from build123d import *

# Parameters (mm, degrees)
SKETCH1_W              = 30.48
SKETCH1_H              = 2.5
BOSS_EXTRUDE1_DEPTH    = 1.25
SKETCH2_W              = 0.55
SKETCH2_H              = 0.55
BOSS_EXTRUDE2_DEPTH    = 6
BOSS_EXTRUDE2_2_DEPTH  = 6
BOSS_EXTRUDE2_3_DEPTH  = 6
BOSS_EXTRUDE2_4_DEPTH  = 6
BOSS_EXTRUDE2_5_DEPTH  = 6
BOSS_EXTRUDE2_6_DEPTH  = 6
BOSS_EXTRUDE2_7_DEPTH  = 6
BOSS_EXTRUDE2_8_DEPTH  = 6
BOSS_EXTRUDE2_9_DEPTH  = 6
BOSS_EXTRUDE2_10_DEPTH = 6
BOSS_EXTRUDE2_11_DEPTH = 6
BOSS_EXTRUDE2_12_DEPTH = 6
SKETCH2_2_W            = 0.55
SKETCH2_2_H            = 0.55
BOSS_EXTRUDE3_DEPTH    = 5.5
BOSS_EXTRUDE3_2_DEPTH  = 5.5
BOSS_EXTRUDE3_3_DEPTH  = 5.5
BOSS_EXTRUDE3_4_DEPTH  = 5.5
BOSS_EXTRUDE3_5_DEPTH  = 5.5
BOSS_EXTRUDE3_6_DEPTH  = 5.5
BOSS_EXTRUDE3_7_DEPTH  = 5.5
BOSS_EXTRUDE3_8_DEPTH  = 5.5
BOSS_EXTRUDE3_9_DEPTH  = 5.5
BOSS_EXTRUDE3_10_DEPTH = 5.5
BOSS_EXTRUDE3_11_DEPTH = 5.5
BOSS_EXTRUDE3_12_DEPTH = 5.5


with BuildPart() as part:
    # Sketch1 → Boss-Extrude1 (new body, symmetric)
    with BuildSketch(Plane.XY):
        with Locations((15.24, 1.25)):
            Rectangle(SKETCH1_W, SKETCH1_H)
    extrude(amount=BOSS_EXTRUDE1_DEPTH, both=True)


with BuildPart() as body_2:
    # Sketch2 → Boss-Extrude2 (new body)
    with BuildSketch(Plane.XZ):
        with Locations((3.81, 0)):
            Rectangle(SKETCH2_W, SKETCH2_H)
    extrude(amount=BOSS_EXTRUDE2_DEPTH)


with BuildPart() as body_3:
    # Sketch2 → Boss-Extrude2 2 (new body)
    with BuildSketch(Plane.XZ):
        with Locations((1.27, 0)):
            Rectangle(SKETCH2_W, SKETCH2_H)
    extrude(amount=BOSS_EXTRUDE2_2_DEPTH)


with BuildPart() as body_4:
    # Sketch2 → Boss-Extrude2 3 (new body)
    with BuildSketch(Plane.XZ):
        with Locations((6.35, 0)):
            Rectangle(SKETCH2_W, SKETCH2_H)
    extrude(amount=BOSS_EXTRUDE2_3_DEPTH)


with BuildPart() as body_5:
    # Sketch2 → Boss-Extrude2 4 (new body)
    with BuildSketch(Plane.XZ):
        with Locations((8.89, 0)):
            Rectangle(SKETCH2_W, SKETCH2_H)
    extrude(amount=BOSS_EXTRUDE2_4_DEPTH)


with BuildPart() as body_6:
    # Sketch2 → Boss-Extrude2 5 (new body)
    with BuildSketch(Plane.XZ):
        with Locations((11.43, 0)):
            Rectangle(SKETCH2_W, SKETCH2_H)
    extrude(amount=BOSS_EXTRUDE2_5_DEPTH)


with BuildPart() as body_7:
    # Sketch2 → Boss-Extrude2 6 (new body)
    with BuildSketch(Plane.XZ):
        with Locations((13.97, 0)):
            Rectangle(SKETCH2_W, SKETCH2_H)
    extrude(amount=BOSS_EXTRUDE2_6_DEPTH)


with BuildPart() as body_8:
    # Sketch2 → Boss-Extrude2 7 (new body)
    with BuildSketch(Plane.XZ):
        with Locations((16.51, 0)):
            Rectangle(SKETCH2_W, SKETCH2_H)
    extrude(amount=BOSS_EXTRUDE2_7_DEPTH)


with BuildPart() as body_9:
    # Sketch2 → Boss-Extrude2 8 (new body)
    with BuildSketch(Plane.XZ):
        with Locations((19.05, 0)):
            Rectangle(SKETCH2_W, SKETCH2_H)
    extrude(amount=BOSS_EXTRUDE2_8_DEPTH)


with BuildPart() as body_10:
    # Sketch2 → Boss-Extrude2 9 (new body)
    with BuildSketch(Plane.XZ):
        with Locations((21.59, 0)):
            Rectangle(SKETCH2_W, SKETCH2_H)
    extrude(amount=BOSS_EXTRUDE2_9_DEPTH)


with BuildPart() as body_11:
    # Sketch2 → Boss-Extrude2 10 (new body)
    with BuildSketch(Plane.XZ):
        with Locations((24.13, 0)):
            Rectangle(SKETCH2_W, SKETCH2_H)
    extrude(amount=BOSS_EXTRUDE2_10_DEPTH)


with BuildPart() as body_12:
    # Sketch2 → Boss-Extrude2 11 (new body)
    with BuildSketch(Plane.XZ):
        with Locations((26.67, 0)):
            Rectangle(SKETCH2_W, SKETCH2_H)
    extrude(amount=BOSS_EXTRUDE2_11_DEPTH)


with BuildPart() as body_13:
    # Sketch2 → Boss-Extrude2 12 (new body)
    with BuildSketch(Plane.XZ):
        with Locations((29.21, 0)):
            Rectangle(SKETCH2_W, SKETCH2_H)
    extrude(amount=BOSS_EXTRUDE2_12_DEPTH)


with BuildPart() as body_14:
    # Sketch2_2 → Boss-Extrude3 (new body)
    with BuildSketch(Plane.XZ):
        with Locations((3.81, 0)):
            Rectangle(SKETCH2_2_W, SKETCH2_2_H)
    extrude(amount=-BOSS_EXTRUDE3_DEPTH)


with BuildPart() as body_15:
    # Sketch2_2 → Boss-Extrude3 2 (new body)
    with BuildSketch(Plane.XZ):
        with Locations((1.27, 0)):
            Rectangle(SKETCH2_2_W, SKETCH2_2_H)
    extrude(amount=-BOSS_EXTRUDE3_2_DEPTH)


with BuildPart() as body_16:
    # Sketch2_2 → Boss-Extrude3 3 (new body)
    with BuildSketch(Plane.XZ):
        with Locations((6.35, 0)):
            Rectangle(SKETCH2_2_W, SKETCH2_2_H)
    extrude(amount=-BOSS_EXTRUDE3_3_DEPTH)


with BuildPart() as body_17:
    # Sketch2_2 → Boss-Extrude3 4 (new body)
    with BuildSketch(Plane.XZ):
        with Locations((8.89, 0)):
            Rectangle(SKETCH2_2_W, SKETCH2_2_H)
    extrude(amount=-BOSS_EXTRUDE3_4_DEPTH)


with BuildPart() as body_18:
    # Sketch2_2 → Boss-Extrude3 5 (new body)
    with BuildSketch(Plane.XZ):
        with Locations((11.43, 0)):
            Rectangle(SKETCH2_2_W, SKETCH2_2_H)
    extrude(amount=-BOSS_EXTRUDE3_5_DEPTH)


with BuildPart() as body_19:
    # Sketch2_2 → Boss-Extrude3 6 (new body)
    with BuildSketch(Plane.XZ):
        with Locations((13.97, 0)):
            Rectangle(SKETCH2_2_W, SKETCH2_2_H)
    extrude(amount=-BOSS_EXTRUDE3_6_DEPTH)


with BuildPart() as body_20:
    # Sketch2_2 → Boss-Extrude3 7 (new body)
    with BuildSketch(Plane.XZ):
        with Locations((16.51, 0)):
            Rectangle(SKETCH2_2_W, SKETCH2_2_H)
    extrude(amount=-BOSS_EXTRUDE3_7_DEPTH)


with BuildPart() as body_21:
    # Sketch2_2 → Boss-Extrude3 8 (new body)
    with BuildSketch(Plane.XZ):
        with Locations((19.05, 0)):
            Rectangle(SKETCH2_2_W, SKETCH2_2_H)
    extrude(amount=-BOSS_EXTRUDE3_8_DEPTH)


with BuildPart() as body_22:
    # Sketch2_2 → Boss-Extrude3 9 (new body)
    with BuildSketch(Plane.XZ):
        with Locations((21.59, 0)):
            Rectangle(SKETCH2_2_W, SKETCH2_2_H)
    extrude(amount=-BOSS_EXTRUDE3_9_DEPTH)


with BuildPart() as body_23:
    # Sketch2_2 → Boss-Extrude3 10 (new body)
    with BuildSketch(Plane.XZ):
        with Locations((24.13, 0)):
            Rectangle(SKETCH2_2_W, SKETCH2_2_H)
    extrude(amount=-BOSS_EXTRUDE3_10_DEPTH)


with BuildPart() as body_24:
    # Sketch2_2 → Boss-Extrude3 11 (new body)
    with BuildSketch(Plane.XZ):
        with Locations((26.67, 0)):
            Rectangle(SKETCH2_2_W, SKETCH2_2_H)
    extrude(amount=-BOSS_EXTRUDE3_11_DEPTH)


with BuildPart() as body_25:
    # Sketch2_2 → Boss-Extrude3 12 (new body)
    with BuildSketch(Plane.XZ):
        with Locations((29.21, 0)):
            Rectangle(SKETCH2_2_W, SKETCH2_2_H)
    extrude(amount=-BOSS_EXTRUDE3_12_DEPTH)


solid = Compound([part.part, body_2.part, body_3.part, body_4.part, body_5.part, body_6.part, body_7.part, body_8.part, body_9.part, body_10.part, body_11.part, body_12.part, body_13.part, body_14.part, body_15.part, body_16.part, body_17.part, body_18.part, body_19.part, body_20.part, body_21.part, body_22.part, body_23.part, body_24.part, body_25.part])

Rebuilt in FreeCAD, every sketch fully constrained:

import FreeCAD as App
import Part
import Sketcher

doc = App.newDocument("Part")
body = doc.addObject("PartDesign::Body", "Body")

sketch1 = doc.addObject("Sketcher::SketchObject", "Sketch")
body.addObject(sketch1)
sketch1.AttachmentSupport = (doc.XY_Plane, [""])
sketch1.MapMode = "FlatFace"
sketch1.addGeometry(Part.LineSegment(App.Vector(0, 2.5, 0), App.Vector(0, 0, 0)), False)
sketch1.addGeometry(Part.LineSegment(App.Vector(0, 0, 0), App.Vector(30.5, 0, 0)), False)
sketch1.addGeometry(Part.LineSegment(App.Vector(30.5, 0, 0), App.Vector(30.5, 2.5, 0)), False)
sketch1.addGeometry(Part.LineSegment(App.Vector(30.5, 2.5, 0), App.Vector(0, 2.5, 0)), False)
sketch1.addConstraint(Sketcher.Constraint("Coincident", 0, 2, 1, 1))
sketch1.addConstraint(Sketcher.Constraint("Coincident", 1, 2, 2, 1))
sketch1.addConstraint(Sketcher.Constraint("Coincident", 2, 2, 3, 1))
sketch1.addConstraint(Sketcher.Constraint("Coincident", 3, 2, 0, 1))
sketch1.addConstraint(Sketcher.Constraint("Vertical", 0))
sketch1.addConstraint(Sketcher.Constraint("Horizontal", 1))
sketch1.addConstraint(Sketcher.Constraint("Vertical", 2))
sketch1.addConstraint(Sketcher.Constraint("Horizontal", 3))
sketch1.addConstraint(Sketcher.Constraint("Coincident", 0, 2, -1, 1))
sketch1.addConstraint(Sketcher.Constraint("DistanceY", 0, 2, 0, 1, 2.5))
sketch1.addConstraint(Sketcher.Constraint("DistanceX", 1, 1, 1, 2, 30.48))
pad1 = doc.addObject("PartDesign::Pad", "Pad")
body.addObject(pad1)
pad1.Profile = sketch1
pad1.Length = 2.5
pad1.Midplane = True
body2 = doc.addObject("PartDesign::Body", "Body001")

sketch2 = doc.addObject("Sketcher::SketchObject", "Sketch001")
body2.addObject(sketch2)
sketch2.AttachmentSupport = (doc.getObject("XZ_Plane001"), [""])
sketch2.MapMode = "FlatFace"
sketch2.addGeometry(Part.LineSegment(App.Vector(3.5, 0.3, 0), App.Vector(3.5, -0.3, 0)), False)
sketch2.addGeometry(Part.LineSegment(App.Vector(3.5, -0.3, 0), App.Vector(4.1, -0.3, 0)), False)
sketch2.addGeometry(Part.LineSegment(App.Vector(4.1, -0.3, 0), App.Vector(4.1, 0.3, 0)), False)
sketch2.addGeometry(Part.LineSegment(App.Vector(4.1, 0.3, 0), App.Vector(3.5, 0.3, 0)), False)
sketch2.addConstraint(Sketcher.Constraint("Coincident", 0, 2, 1, 1))
sketch2.addConstraint(Sketcher.Constraint("Coincident", 1, 2, 2, 1))
sketch2.addConstraint(Sketcher.Constraint("Coincident", 2, 2, 3, 1))
sketch2.addConstraint(Sketcher.Constraint("Coincident", 3, 2, 0, 1))
sketch2.addConstraint(Sketcher.Constraint("Vertical", 0))
sketch2.addConstraint(Sketcher.Constraint("Horizontal", 1))
sketch2.addConstraint(Sketcher.Constraint("Vertical", 2))
sketch2.addConstraint(Sketcher.Constraint("Horizontal", 3))
sketch2.addConstraint(Sketcher.Constraint("Equal", 3, 0))
sketch2.addConstraint(Sketcher.Constraint("DistanceX", 1, 1, 1, 2, 0.55))
sketch2.addConstraint(Sketcher.Constraint("DistanceX", -1, 1, 0, 2, 3.535))
sketch2.addConstraint(Sketcher.Constraint("DistanceY", 0, 2, -1, 1, 0.275))
pad2 = doc.addObject("PartDesign::Pad", "Pad001")
body2.addObject(pad2)
pad2.Profile = sketch2
pad2.Length = 6
body3 = doc.addObject("PartDesign::Body", "Body002")

sketch3 = doc.addObject("Sketcher::SketchObject", "Sketch002")
body3.addObject(sketch3)
sketch3.AttachmentSupport = (doc.getObject("XZ_Plane002"), [""])
sketch3.MapMode = "FlatFace"
sketch3.addGeometry(Part.LineSegment(App.Vector(1, 0.3, 0), App.Vector(1, -0.3, 0)), False)
sketch3.addGeometry(Part.LineSegment(App.Vector(1, -0.3, 0), App.Vector(1.5, -0.3, 0)), False)
sketch3.addGeometry(Part.LineSegment(App.Vector(1.5, -0.3, 0), App.Vector(1.5, 0.3, 0)), False)
sketch3.addGeometry(Part.LineSegment(App.Vector(1.5, 0.3, 0), App.Vector(1, 0.3, 0)), False)
sketch3.addConstraint(Sketcher.Constraint("Coincident", 0, 2, 1, 1))
sketch3.addConstraint(Sketcher.Constraint("Coincident", 1, 2, 2, 1))
sketch3.addConstraint(Sketcher.Constraint("Coincident", 2, 2, 3, 1))
sketch3.addConstraint(Sketcher.Constraint("Coincident", 3, 2, 0, 1))
sketch3.addConstraint(Sketcher.Constraint("Vertical", 0))
sketch3.addConstraint(Sketcher.Constraint("Horizontal", 1))
sketch3.addConstraint(Sketcher.Constraint("Vertical", 2))
sketch3.addConstraint(Sketcher.Constraint("Horizontal", 3))
sketch3.addConstraint(Sketcher.Constraint("Equal", 3, 0))
sketch3.addConstraint(Sketcher.Constraint("DistanceX", 1, 1, 1, 2, 0.55))
sketch3.addConstraint(Sketcher.Constraint("DistanceX", -1, 1, 0, 2, 0.995))
sketch3.addConstraint(Sketcher.Constraint("DistanceY", 0, 2, -1, 1, 0.275))
pad3 = doc.addObject("PartDesign::Pad", "Pad002")
body3.addObject(pad3)
pad3.Profile = sketch3
pad3.Length = 6
body4 = doc.addObject("PartDesign::Body", "Body003")

sketch4 = doc.addObject("Sketcher::SketchObject", "Sketch003")
body4.addObject(sketch4)
sketch4.AttachmentSupport = (doc.getObject("XZ_Plane003"), [""])
sketch4.MapMode = "FlatFace"
sketch4.addGeometry(Part.LineSegment(App.Vector(6.1, 0.3, 0), App.Vector(6.1, -0.3, 0)), False)
sketch4.addGeometry(Part.LineSegment(App.Vector(6.1, -0.3, 0), App.Vector(6.6, -0.3, 0)), False)
sketch4.addGeometry(Part.LineSegment(App.Vector(6.6, -0.3, 0), App.Vector(6.6, 0.3, 0)), False)
sketch4.addGeometry(Part.LineSegment(App.Vector(6.6, 0.3, 0), App.Vector(6.1, 0.3, 0)), False)
sketch4.addConstraint(Sketcher.Constraint("Coincident", 0, 2, 1, 1))
sketch4.addConstraint(Sketcher.Constraint("Coincident", 1, 2, 2, 1))
sketch4.addConstraint(Sketcher.Constraint("Coincident", 2, 2, 3, 1))
sketch4.addConstraint(Sketcher.Constraint("Coincident", 3, 2, 0, 1))
sketch4.addConstraint(Sketcher.Constraint("Vertical", 0))
sketch4.addConstraint(Sketcher.Constraint("Horizontal", 1))
sketch4.addConstraint(Sketcher.Constraint("Vertical", 2))
sketch4.addConstraint(Sketcher.Constraint("Horizontal", 3))
sketch4.addConstraint(Sketcher.Constraint("Equal", 3, 0))
sketch4.addConstraint(Sketcher.Constraint("DistanceX", 1, 1, 1, 2, 0.55))
sketch4.addConstraint(Sketcher.Constraint("DistanceX", -1, 1, 0, 2, 6.075))
sketch4.addConstraint(Sketcher.Constraint("DistanceY", 0, 2, -1, 1, 0.275))
pad4 = doc.addObject("PartDesign::Pad", "Pad003")
body4.addObject(pad4)
pad4.Profile = sketch4
pad4.Length = 6
body5 = doc.addObject("PartDesign::Body", "Body004")

sketch5 = doc.addObject("Sketcher::SketchObject", "Sketch004")
body5.addObject(sketch5)
sketch5.AttachmentSupport = (doc.getObject("XZ_Plane004"), [""])
sketch5.MapMode = "FlatFace"
sketch5.addGeometry(Part.LineSegment(App.Vector(8.6, 0.3, 0), App.Vector(8.6, -0.3, 0)), False)
sketch5.addGeometry(Part.LineSegment(App.Vector(8.6, -0.3, 0), App.Vector(9.2, -0.3, 0)), False)
sketch5.addGeometry(Part.LineSegment(App.Vector(9.2, -0.3, 0), App.Vector(9.2, 0.3, 0)), False)
sketch5.addGeometry(Part.LineSegment(App.Vector(9.2, 0.3, 0), App.Vector(8.6, 0.3, 0)), False)
sketch5.addConstraint(Sketcher.Constraint("Coincident", 0, 2, 1, 1))
sketch5.addConstraint(Sketcher.Constraint("Coincident", 1, 2, 2, 1))
sketch5.addConstraint(Sketcher.Constraint("Coincident", 2, 2, 3, 1))
sketch5.addConstraint(Sketcher.Constraint("Coincident", 3, 2, 0, 1))
sketch5.addConstraint(Sketcher.Constraint("Vertical", 0))
sketch5.addConstraint(Sketcher.Constraint("Horizontal", 1))
sketch5.addConstraint(Sketcher.Constraint("Vertical", 2))
sketch5.addConstraint(Sketcher.Constraint("Horizontal", 3))
sketch5.addConstraint(Sketcher.Constraint("Equal", 3, 0))
sketch5.addConstraint(Sketcher.Constraint("DistanceX", 1, 1, 1, 2, 0.55))
sketch5.addConstraint(Sketcher.Constraint("DistanceX", -1, 1, 0, 2, 8.615))
sketch5.addConstraint(Sketcher.Constraint("DistanceY", 0, 2, -1, 1, 0.275))
pad5 = doc.addObject("PartDesign::Pad", "Pad004")
body5.addObject(pad5)
pad5.Profile = sketch5
pad5.Length = 6
body6 = doc.addObject("PartDesign::Body", "Body005")

sketch6 = doc.addObject("Sketcher::SketchObject", "Sketch005")
body6.addObject(sketch6)
sketch6.AttachmentSupport = (doc.getObject("XZ_Plane005"), [""])
sketch6.MapMode = "FlatFace"
sketch6.addGeometry(Part.LineSegment(App.Vector(11.2, 0.3, 0), App.Vector(11.2, -0.3, 0)), False)
sketch6.addGeometry(Part.LineSegment(App.Vector(11.2, -0.3, 0), App.Vector(11.7, -0.3, 0)), False)
sketch6.addGeometry(Part.LineSegment(App.Vector(11.7, -0.3, 0), App.Vector(11.7, 0.3, 0)), False)
sketch6.addGeometry(Part.LineSegment(App.Vector(11.7, 0.3, 0), App.Vector(11.2, 0.3, 0)), False)
sketch6.addConstraint(Sketcher.Constraint("Coincident", 0, 2, 1, 1))
sketch6.addConstraint(Sketcher.Constraint("Coincident", 1, 2, 2, 1))
sketch6.addConstraint(Sketcher.Constraint("Coincident", 2, 2, 3, 1))
sketch6.addConstraint(Sketcher.Constraint("Coincident", 3, 2, 0, 1))
sketch6.addConstraint(Sketcher.Constraint("Vertical", 0))
sketch6.addConstraint(Sketcher.Constraint("Horizontal", 1))
sketch6.addConstraint(Sketcher.Constraint("Vertical", 2))
sketch6.addConstraint(Sketcher.Constraint("Horizontal", 3))
sketch6.addConstraint(Sketcher.Constraint("Equal", 3, 0))
sketch6.addConstraint(Sketcher.Constraint("DistanceX", 1, 1, 1, 2, 0.55))
sketch6.addConstraint(Sketcher.Constraint("DistanceX", -1, 1, 0, 2, 11.155))
sketch6.addConstraint(Sketcher.Constraint("DistanceY", 0, 2, -1, 1, 0.275))
pad6 = doc.addObject("PartDesign::Pad", "Pad005")
body6.addObject(pad6)
pad6.Profile = sketch6
pad6.Length = 6
body7 = doc.addObject("PartDesign::Body", "Body006")

sketch7 = doc.addObject("Sketcher::SketchObject", "Sketch006")
body7.addObject(sketch7)
sketch7.AttachmentSupport = (doc.getObject("XZ_Plane006"), [""])
sketch7.MapMode = "FlatFace"
sketch7.addGeometry(Part.LineSegment(App.Vector(13.7, 0.3, 0), App.Vector(13.7, -0.3, 0)), False)
sketch7.addGeometry(Part.LineSegment(App.Vector(13.7, -0.3, 0), App.Vector(14.2, -0.3, 0)), False)
sketch7.addGeometry(Part.LineSegment(App.Vector(14.2, -0.3, 0), App.Vector(14.2, 0.3, 0)), False)
sketch7.addGeometry(Part.LineSegment(App.Vector(14.2, 0.3, 0), App.Vector(13.7, 0.3, 0)), False)
sketch7.addConstraint(Sketcher.Constraint("Coincident", 0, 2, 1, 1))
sketch7.addConstraint(Sketcher.Constraint("Coincident", 1, 2, 2, 1))
sketch7.addConstraint(Sketcher.Constraint("Coincident", 2, 2, 3, 1))
sketch7.addConstraint(Sketcher.Constraint("Coincident", 3, 2, 0, 1))
sketch7.addConstraint(Sketcher.Constraint("Vertical", 0))
sketch7.addConstraint(Sketcher.Constraint("Horizontal", 1))
sketch7.addConstraint(Sketcher.Constraint("Vertical", 2))
sketch7.addConstraint(Sketcher.Constraint("Horizontal", 3))
sketch7.addConstraint(Sketcher.Constraint("Equal", 3, 0))
sketch7.addConstraint(Sketcher.Constraint("DistanceX", 1, 1, 1, 2, 0.55))
sketch7.addConstraint(Sketcher.Constraint("DistanceX", -1, 1, 0, 2, 13.695))
sketch7.addConstraint(Sketcher.Constraint("DistanceY", 0, 2, -1, 1, 0.275))
pad7 = doc.addObject("PartDesign::Pad", "Pad006")
body7.addObject(pad7)
pad7.Profile = sketch7
pad7.Length = 6
body8 = doc.addObject("PartDesign::Body", "Body007")

sketch8 = doc.addObject("Sketcher::SketchObject", "Sketch007")
body8.addObject(sketch8)
sketch8.AttachmentSupport = (doc.getObject("XZ_Plane007"), [""])
sketch8.MapMode = "FlatFace"
sketch8.addGeometry(Part.LineSegment(App.Vector(16.2, 0.3, 0), App.Vector(16.2, -0.3, 0)), False)
sketch8.addGeometry(Part.LineSegment(App.Vector(16.2, -0.3, 0), App.Vector(16.8, -0.3, 0)), False)
sketch8.addGeometry(Part.LineSegment(App.Vector(16.8, -0.3, 0), App.Vector(16.8, 0.3, 0)), False)
sketch8.addGeometry(Part.LineSegment(App.Vector(16.8, 0.3, 0), App.Vector(16.2, 0.3, 0)), False)
sketch8.addConstraint(Sketcher.Constraint("Coincident", 0, 2, 1, 1))
sketch8.addConstraint(Sketcher.Constraint("Coincident", 1, 2, 2, 1))
sketch8.addConstraint(Sketcher.Constraint("Coincident", 2, 2, 3, 1))
sketch8.addConstraint(Sketcher.Constraint("Coincident", 3, 2, 0, 1))
sketch8.addConstraint(Sketcher.Constraint("Vertical", 0))
sketch8.addConstraint(Sketcher.Constraint("Horizontal", 1))
sketch8.addConstraint(Sketcher.Constraint("Vertical", 2))
sketch8.addConstraint(Sketcher.Constraint("Horizontal", 3))
sketch8.addConstraint(Sketcher.Constraint("Equal", 3, 0))
sketch8.addConstraint(Sketcher.Constraint("DistanceX", 1, 1, 1, 2, 0.55))
sketch8.addConstraint(Sketcher.Constraint("DistanceX", -1, 1, 0, 2, 16.235))
sketch8.addConstraint(Sketcher.Constraint("DistanceY", 0, 2, -1, 1, 0.275))
pad8 = doc.addObject("PartDesign::Pad", "Pad007")
body8.addObject(pad8)
pad8.Profile = sketch8
pad8.Length = 6
body9 = doc.addObject("PartDesign::Body", "Body008")

sketch9 = doc.addObject("Sketcher::SketchObject", "Sketch008")
body9.addObject(sketch9)
sketch9.AttachmentSupport = (doc.getObject("XZ_Plane008"), [""])
sketch9.MapMode = "FlatFace"
sketch9.addGeometry(Part.LineSegment(App.Vector(18.8, 0.3, 0), App.Vector(18.8, -0.3, 0)), False)
sketch9.addGeometry(Part.LineSegment(App.Vector(18.8, -0.3, 0), App.Vector(19.3, -0.3, 0)), False)
sketch9.addGeometry(Part.LineSegment(App.Vector(19.3, -0.3, 0), App.Vector(19.3, 0.3, 0)), False)
sketch9.addGeometry(Part.LineSegment(App.Vector(19.3, 0.3, 0), App.Vector(18.8, 0.3, 0)), False)
sketch9.addConstraint(Sketcher.Constraint("Coincident", 0, 2, 1, 1))
sketch9.addConstraint(Sketcher.Constraint("Coincident", 1, 2, 2, 1))
sketch9.addConstraint(Sketcher.Constraint("Coincident", 2, 2, 3, 1))
sketch9.addConstraint(Sketcher.Constraint("Coincident", 3, 2, 0, 1))
sketch9.addConstraint(Sketcher.Constraint("Vertical", 0))
sketch9.addConstraint(Sketcher.Constraint("Horizontal", 1))
sketch9.addConstraint(Sketcher.Constraint("Vertical", 2))
sketch9.addConstraint(Sketcher.Constraint("Horizontal", 3))
sketch9.addConstraint(Sketcher.Constraint("Equal", 3, 0))
sketch9.addConstraint(Sketcher.Constraint("DistanceX", 1, 1, 1, 2, 0.55))
sketch9.addConstraint(Sketcher.Constraint("DistanceX", -1, 1, 0, 2, 18.775))
sketch9.addConstraint(Sketcher.Constraint("DistanceY", 0, 2, -1, 1, 0.275))
pad9 = doc.addObject("PartDesign::Pad", "Pad008")
body9.addObject(pad9)
pad9.Profile = sketch9
pad9.Length = 6
body10 = doc.addObject("PartDesign::Body", "Body009")

sketch10 = doc.addObject("Sketcher::SketchObject", "Sketch009")
body10.addObject(sketch10)
sketch10.AttachmentSupport = (doc.getObject("XZ_Plane009"), [""])
sketch10.MapMode = "FlatFace"
sketch10.addGeometry(Part.LineSegment(App.Vector(21.3, 0.3, 0), App.Vector(21.3, -0.3, 0)), False)
sketch10.addGeometry(Part.LineSegment(App.Vector(21.3, -0.3, 0), App.Vector(21.9, -0.3, 0)), False)
sketch10.addGeometry(Part.LineSegment(App.Vector(21.9, -0.3, 0), App.Vector(21.9, 0.3, 0)), False)
sketch10.addGeometry(Part.LineSegment(App.Vector(21.9, 0.3, 0), App.Vector(21.3, 0.3, 0)), False)
sketch10.addConstraint(Sketcher.Constraint("Coincident", 0, 2, 1, 1))
sketch10.addConstraint(Sketcher.Constraint("Coincident", 1, 2, 2, 1))
sketch10.addConstraint(Sketcher.Constraint("Coincident", 2, 2, 3, 1))
sketch10.addConstraint(Sketcher.Constraint("Coincident", 3, 2, 0, 1))
sketch10.addConstraint(Sketcher.Constraint("Vertical", 0))
sketch10.addConstraint(Sketcher.Constraint("Horizontal", 1))
sketch10.addConstraint(Sketcher.Constraint("Vertical", 2))
sketch10.addConstraint(Sketcher.Constraint("Horizontal", 3))
sketch10.addConstraint(Sketcher.Constraint("Equal", 3, 0))
sketch10.addConstraint(Sketcher.Constraint("DistanceX", 1, 1, 1, 2, 0.55))
sketch10.addConstraint(Sketcher.Constraint("DistanceX", -1, 1, 0, 2, 21.315))
sketch10.addConstraint(Sketcher.Constraint("DistanceY", 0, 2, -1, 1, 0.275))
pad10 = doc.addObject("PartDesign::Pad", "Pad009")
body10.addObject(pad10)
pad10.Profile = sketch10
pad10.Length = 6
body11 = doc.addObject("PartDesign::Body", "Body010")

sketch11 = doc.addObject("Sketcher::SketchObject", "Sketch010")
body11.addObject(sketch11)
sketch11.AttachmentSupport = (doc.getObject("XZ_Plane010"), [""])
sketch11.MapMode = "FlatFace"
sketch11.addGeometry(Part.LineSegment(App.Vector(23.9, 0.3, 0), App.Vector(23.9, -0.3, 0)), False)
sketch11.addGeometry(Part.LineSegment(App.Vector(23.9, -0.3, 0), App.Vector(24.4, -0.3, 0)), False)
sketch11.addGeometry(Part.LineSegment(App.Vector(24.4, -0.3, 0), App.Vector(24.4, 0.3, 0)), False)
sketch11.addGeometry(Part.LineSegment(App.Vector(24.4, 0.3, 0), App.Vector(23.9, 0.3, 0)), False)
sketch11.addConstraint(Sketcher.Constraint("Coincident", 0, 2, 1, 1))
sketch11.addConstraint(Sketcher.Constraint("Coincident", 1, 2, 2, 1))
sketch11.addConstraint(Sketcher.Constraint("Coincident", 2, 2, 3, 1))
sketch11.addConstraint(Sketcher.Constraint("Coincident", 3, 2, 0, 1))
sketch11.addConstraint(Sketcher.Constraint("Vertical", 0))
sketch11.addConstraint(Sketcher.Constraint("Horizontal", 1))
sketch11.addConstraint(Sketcher.Constraint("Vertical", 2))
sketch11.addConstraint(Sketcher.Constraint("Horizontal", 3))
sketch11.addConstraint(Sketcher.Constraint("Equal", 3, 0))
sketch11.addConstraint(Sketcher.Constraint("DistanceX", 1, 1, 1, 2, 0.55))
sketch11.addConstraint(Sketcher.Constraint("DistanceX", -1, 1, 0, 2, 23.855))
sketch11.addConstraint(Sketcher.Constraint("DistanceY", 0, 2, -1, 1, 0.275))
pad11 = doc.addObject("PartDesign::Pad", "Pad010")
body11.addObject(pad11)
pad11.Profile = sketch11
pad11.Length = 6
body12 = doc.addObject("PartDesign::Body", "Body011")

sketch12 = doc.addObject("Sketcher::SketchObject", "Sketch011")
body12.addObject(sketch12)
sketch12.AttachmentSupport = (doc.getObject("XZ_Plane011"), [""])
sketch12.MapMode = "FlatFace"
sketch12.addGeometry(Part.LineSegment(App.Vector(26.4, 0.3, 0), App.Vector(26.4, -0.3, 0)), False)
sketch12.addGeometry(Part.LineSegment(App.Vector(26.4, -0.3, 0), App.Vector(26.9, -0.3, 0)), False)
sketch12.addGeometry(Part.LineSegment(App.Vector(26.9, -0.3, 0), App.Vector(26.9, 0.3, 0)), False)
sketch12.addGeometry(Part.LineSegment(App.Vector(26.9, 0.3, 0), App.Vector(26.4, 0.3, 0)), False)
sketch12.addConstraint(Sketcher.Constraint("Coincident", 0, 2, 1, 1))
sketch12.addConstraint(Sketcher.Constraint("Coincident", 1, 2, 2, 1))
sketch12.addConstraint(Sketcher.Constraint("Coincident", 2, 2, 3, 1))
sketch12.addConstraint(Sketcher.Constraint("Coincident", 3, 2, 0, 1))
sketch12.addConstraint(Sketcher.Constraint("Vertical", 0))
sketch12.addConstraint(Sketcher.Constraint("Horizontal", 1))
sketch12.addConstraint(Sketcher.Constraint("Vertical", 2))
sketch12.addConstraint(Sketcher.Constraint("Horizontal", 3))
sketch12.addConstraint(Sketcher.Constraint("Equal", 3, 0))
sketch12.addConstraint(Sketcher.Constraint("DistanceX", 1, 1, 1, 2, 0.55))
sketch12.addConstraint(Sketcher.Constraint("DistanceX", -1, 1, 0, 2, 26.395))
sketch12.addConstraint(Sketcher.Constraint("DistanceY", 0, 2, -1, 1, 0.275))
pad12 = doc.addObject("PartDesign::Pad", "Pad011")
body12.addObject(pad12)
pad12.Profile = sketch12
pad12.Length = 6
body13 = doc.addObject("PartDesign::Body", "Body012")

sketch13 = doc.addObject("Sketcher::SketchObject", "Sketch012")
body13.addObject(sketch13)
sketch13.AttachmentSupport = (doc.getObject("XZ_Plane012"), [""])
sketch13.MapMode = "FlatFace"
sketch13.addGeometry(Part.LineSegment(App.Vector(28.9, 0.3, 0), App.Vector(28.9, -0.3, 0)), False)
sketch13.addGeometry(Part.LineSegment(App.Vector(28.9, -0.3, 0), App.Vector(29.5, -0.3, 0)), False)
sketch13.addGeometry(Part.LineSegment(App.Vector(29.5, -0.3, 0), App.Vector(29.5, 0.3, 0)), False)
sketch13.addGeometry(Part.LineSegment(App.Vector(29.5, 0.3, 0), App.Vector(28.9, 0.3, 0)), False)
sketch13.addConstraint(Sketcher.Constraint("Coincident", 0, 2, 1, 1))
sketch13.addConstraint(Sketcher.Constraint("Coincident", 1, 2, 2, 1))
sketch13.addConstraint(Sketcher.Constraint("Coincident", 2, 2, 3, 1))
sketch13.addConstraint(Sketcher.Constraint("Coincident", 3, 2, 0, 1))
sketch13.addConstraint(Sketcher.Constraint("Vertical", 0))
sketch13.addConstraint(Sketcher.Constraint("Horizontal", 1))
sketch13.addConstraint(Sketcher.Constraint("Vertical", 2))
sketch13.addConstraint(Sketcher.Constraint("Horizontal", 3))
sketch13.addConstraint(Sketcher.Constraint("Equal", 3, 0))
sketch13.addConstraint(Sketcher.Constraint("DistanceX", 1, 1, 1, 2, 0.55))
sketch13.addConstraint(Sketcher.Constraint("DistanceX", -1, 1, 0, 2, 28.935))
sketch13.addConstraint(Sketcher.Constraint("DistanceY", 0, 2, -1, 1, 0.275))
pad13 = doc.addObject("PartDesign::Pad", "Pad012")
body13.addObject(pad13)
pad13.Profile = sketch13
pad13.Length = 6
body14 = doc.addObject("PartDesign::Body", "Body013")

sketch14 = doc.addObject("Sketcher::SketchObject", "Sketch013")
body14.addObject(sketch14)
sketch14.AttachmentSupport = (doc.getObject("XZ_Plane013"), [""])
sketch14.MapMode = "FlatFace"
sketch14.addGeometry(Part.LineSegment(App.Vector(3.5, 0.3, 0), App.Vector(3.5, -0.3, 0)), False)
sketch14.addGeometry(Part.LineSegment(App.Vector(3.5, -0.3, 0), App.Vector(4.1, -0.3, 0)), False)
sketch14.addGeometry(Part.LineSegment(App.Vector(4.1, -0.3, 0), App.Vector(4.1, 0.3, 0)), False)
sketch14.addGeometry(Part.LineSegment(App.Vector(4.1, 0.3, 0), App.Vector(3.5, 0.3, 0)), False)
sketch14.addConstraint(Sketcher.Constraint("Coincident", 0, 2, 1, 1))
sketch14.addConstraint(Sketcher.Constraint("Coincident", 1, 2, 2, 1))
sketch14.addConstraint(Sketcher.Constraint("Coincident", 2, 2, 3, 1))
sketch14.addConstraint(Sketcher.Constraint("Coincident", 3, 2, 0, 1))
sketch14.addConstraint(Sketcher.Constraint("Vertical", 0))
sketch14.addConstraint(Sketcher.Constraint("Horizontal", 1))
sketch14.addConstraint(Sketcher.Constraint("Vertical", 2))
sketch14.addConstraint(Sketcher.Constraint("Horizontal", 3))
sketch14.addConstraint(Sketcher.Constraint("Equal", 3, 0))
sketch14.addConstraint(Sketcher.Constraint("DistanceX", 1, 1, 1, 2, 0.55))
sketch14.addConstraint(Sketcher.Constraint("DistanceX", -1, 1, 0, 2, 3.535))
sketch14.addConstraint(Sketcher.Constraint("DistanceY", 0, 2, -1, 1, 0.275))
pad14 = doc.addObject("PartDesign::Pad", "Pad013")
body14.addObject(pad14)
pad14.Profile = sketch14
pad14.Length = 5.5
pad14.Reversed = True
body15 = doc.addObject("PartDesign::Body", "Body014")

sketch15 = doc.addObject("Sketcher::SketchObject", "Sketch014")
body15.addObject(sketch15)
sketch15.AttachmentSupport = (doc.getObject("XZ_Plane014"), [""])
sketch15.MapMode = "FlatFace"
sketch15.addGeometry(Part.LineSegment(App.Vector(1, 0.3, 0), App.Vector(1, -0.3, 0)), False)
sketch15.addGeometry(Part.LineSegment(App.Vector(1, -0.3, 0), App.Vector(1.5, -0.3, 0)), False)
sketch15.addGeometry(Part.LineSegment(App.Vector(1.5, -0.3, 0), App.Vector(1.5, 0.3, 0)), False)
sketch15.addGeometry(Part.LineSegment(App.Vector(1.5, 0.3, 0), App.Vector(1, 0.3, 0)), False)
sketch15.addConstraint(Sketcher.Constraint("Coincident", 0, 2, 1, 1))
sketch15.addConstraint(Sketcher.Constraint("Coincident", 1, 2, 2, 1))
sketch15.addConstraint(Sketcher.Constraint("Coincident", 2, 2, 3, 1))
sketch15.addConstraint(Sketcher.Constraint("Coincident", 3, 2, 0, 1))
sketch15.addConstraint(Sketcher.Constraint("Vertical", 0))
sketch15.addConstraint(Sketcher.Constraint("Horizontal", 1))
sketch15.addConstraint(Sketcher.Constraint("Vertical", 2))
sketch15.addConstraint(Sketcher.Constraint("Horizontal", 3))
sketch15.addConstraint(Sketcher.Constraint("Equal", 3, 0))
sketch15.addConstraint(Sketcher.Constraint("DistanceX", 1, 1, 1, 2, 0.55))
sketch15.addConstraint(Sketcher.Constraint("DistanceX", -1, 1, 0, 2, 0.995))
sketch15.addConstraint(Sketcher.Constraint("DistanceY", 0, 2, -1, 1, 0.275))
pad15 = doc.addObject("PartDesign::Pad", "Pad014")
body15.addObject(pad15)
pad15.Profile = sketch15
pad15.Length = 5.5
pad15.Reversed = True
body16 = doc.addObject("PartDesign::Body", "Body015")

sketch16 = doc.addObject("Sketcher::SketchObject", "Sketch015")
body16.addObject(sketch16)
sketch16.AttachmentSupport = (doc.getObject("XZ_Plane015"), [""])
sketch16.MapMode = "FlatFace"
sketch16.addGeometry(Part.LineSegment(App.Vector(6.1, 0.3, 0), App.Vector(6.1, -0.3, 0)), False)
sketch16.addGeometry(Part.LineSegment(App.Vector(6.1, -0.3, 0), App.Vector(6.6, -0.3, 0)), False)
sketch16.addGeometry(Part.LineSegment(App.Vector(6.6, -0.3, 0), App.Vector(6.6, 0.3, 0)), False)
sketch16.addGeometry(Part.LineSegment(App.Vector(6.6, 0.3, 0), App.Vector(6.1, 0.3, 0)), False)
sketch16.addConstraint(Sketcher.Constraint("Coincident", 0, 2, 1, 1))
sketch16.addConstraint(Sketcher.Constraint("Coincident", 1, 2, 2, 1))
sketch16.addConstraint(Sketcher.Constraint("Coincident", 2, 2, 3, 1))
sketch16.addConstraint(Sketcher.Constraint("Coincident", 3, 2, 0, 1))
sketch16.addConstraint(Sketcher.Constraint("Vertical", 0))
sketch16.addConstraint(Sketcher.Constraint("Horizontal", 1))
sketch16.addConstraint(Sketcher.Constraint("Vertical", 2))
sketch16.addConstraint(Sketcher.Constraint("Horizontal", 3))
sketch16.addConstraint(Sketcher.Constraint("Equal", 3, 0))
sketch16.addConstraint(Sketcher.Constraint("DistanceX", 1, 1, 1, 2, 0.55))
sketch16.addConstraint(Sketcher.Constraint("DistanceX", -1, 1, 0, 2, 6.075))
sketch16.addConstraint(Sketcher.Constraint("DistanceY", 0, 2, -1, 1, 0.275))
pad16 = doc.addObject("PartDesign::Pad", "Pad015")
body16.addObject(pad16)
pad16.Profile = sketch16
pad16.Length = 5.5
pad16.Reversed = True
body17 = doc.addObject("PartDesign::Body", "Body016")

sketch17 = doc.addObject("Sketcher::SketchObject", "Sketch016")
body17.addObject(sketch17)
sketch17.AttachmentSupport = (doc.getObject("XZ_Plane016"), [""])
sketch17.MapMode = "FlatFace"
sketch17.addGeometry(Part.LineSegment(App.Vector(8.6, 0.3, 0), App.Vector(8.6, -0.3, 0)), False)
sketch17.addGeometry(Part.LineSegment(App.Vector(8.6, -0.3, 0), App.Vector(9.2, -0.3, 0)), False)
sketch17.addGeometry(Part.LineSegment(App.Vector(9.2, -0.3, 0), App.Vector(9.2, 0.3, 0)), False)
sketch17.addGeometry(Part.LineSegment(App.Vector(9.2, 0.3, 0), App.Vector(8.6, 0.3, 0)), False)
sketch17.addConstraint(Sketcher.Constraint("Coincident", 0, 2, 1, 1))
sketch17.addConstraint(Sketcher.Constraint("Coincident", 1, 2, 2, 1))
sketch17.addConstraint(Sketcher.Constraint("Coincident", 2, 2, 3, 1))
sketch17.addConstraint(Sketcher.Constraint("Coincident", 3, 2, 0, 1))
sketch17.addConstraint(Sketcher.Constraint("Vertical", 0))
sketch17.addConstraint(Sketcher.Constraint("Horizontal", 1))
sketch17.addConstraint(Sketcher.Constraint("Vertical", 2))
sketch17.addConstraint(Sketcher.Constraint("Horizontal", 3))
sketch17.addConstraint(Sketcher.Constraint("Equal", 3, 0))
sketch17.addConstraint(Sketcher.Constraint("DistanceX", 1, 1, 1, 2, 0.55))
sketch17.addConstraint(Sketcher.Constraint("DistanceX", -1, 1, 0, 2, 8.615))
sketch17.addConstraint(Sketcher.Constraint("DistanceY", 0, 2, -1, 1, 0.275))
pad17 = doc.addObject("PartDesign::Pad", "Pad016")
body17.addObject(pad17)
pad17.Profile = sketch17
pad17.Length = 5.5
pad17.Reversed = True
body18 = doc.addObject("PartDesign::Body", "Body017")

sketch18 = doc.addObject("Sketcher::SketchObject", "Sketch017")
body18.addObject(sketch18)
sketch18.AttachmentSupport = (doc.getObject("XZ_Plane017"), [""])
sketch18.MapMode = "FlatFace"
sketch18.addGeometry(Part.LineSegment(App.Vector(11.2, 0.3, 0), App.Vector(11.2, -0.3, 0)), False)
sketch18.addGeometry(Part.LineSegment(App.Vector(11.2, -0.3, 0), App.Vector(11.7, -0.3, 0)), False)
sketch18.addGeometry(Part.LineSegment(App.Vector(11.7, -0.3, 0), App.Vector(11.7, 0.3, 0)), False)
sketch18.addGeometry(Part.LineSegment(App.Vector(11.7, 0.3, 0), App.Vector(11.2, 0.3, 0)), False)
sketch18.addConstraint(Sketcher.Constraint("Coincident", 0, 2, 1, 1))
sketch18.addConstraint(Sketcher.Constraint("Coincident", 1, 2, 2, 1))
sketch18.addConstraint(Sketcher.Constraint("Coincident", 2, 2, 3, 1))
sketch18.addConstraint(Sketcher.Constraint("Coincident", 3, 2, 0, 1))
sketch18.addConstraint(Sketcher.Constraint("Vertical", 0))
sketch18.addConstraint(Sketcher.Constraint("Horizontal", 1))
sketch18.addConstraint(Sketcher.Constraint("Vertical", 2))
sketch18.addConstraint(Sketcher.Constraint("Horizontal", 3))
sketch18.addConstraint(Sketcher.Constraint("Equal", 3, 0))
sketch18.addConstraint(Sketcher.Constraint("DistanceX", 1, 1, 1, 2, 0.55))
sketch18.addConstraint(Sketcher.Constraint("DistanceX", -1, 1, 0, 2, 11.155))
sketch18.addConstraint(Sketcher.Constraint("DistanceY", 0, 2, -1, 1, 0.275))
pad18 = doc.addObject("PartDesign::Pad", "Pad017")
body18.addObject(pad18)
pad18.Profile = sketch18
pad18.Length = 5.5
pad18.Reversed = True
body19 = doc.addObject("PartDesign::Body", "Body018")

sketch19 = doc.addObject("Sketcher::SketchObject", "Sketch018")
body19.addObject(sketch19)
sketch19.AttachmentSupport = (doc.getObject("XZ_Plane018"), [""])
sketch19.MapMode = "FlatFace"
sketch19.addGeometry(Part.LineSegment(App.Vector(13.7, 0.3, 0), App.Vector(13.7, -0.3, 0)), False)
sketch19.addGeometry(Part.LineSegment(App.Vector(13.7, -0.3, 0), App.Vector(14.2, -0.3, 0)), False)
sketch19.addGeometry(Part.LineSegment(App.Vector(14.2, -0.3, 0), App.Vector(14.2, 0.3, 0)), False)
sketch19.addGeometry(Part.LineSegment(App.Vector(14.2, 0.3, 0), App.Vector(13.7, 0.3, 0)), False)
sketch19.addConstraint(Sketcher.Constraint("Coincident", 0, 2, 1, 1))
sketch19.addConstraint(Sketcher.Constraint("Coincident", 1, 2, 2, 1))
sketch19.addConstraint(Sketcher.Constraint("Coincident", 2, 2, 3, 1))
sketch19.addConstraint(Sketcher.Constraint("Coincident", 3, 2, 0, 1))
sketch19.addConstraint(Sketcher.Constraint("Vertical", 0))
sketch19.addConstraint(Sketcher.Constraint("Horizontal", 1))
sketch19.addConstraint(Sketcher.Constraint("Vertical", 2))
sketch19.addConstraint(Sketcher.Constraint("Horizontal", 3))
sketch19.addConstraint(Sketcher.Constraint("Equal", 3, 0))
sketch19.addConstraint(Sketcher.Constraint("DistanceX", 1, 1, 1, 2, 0.55))
sketch19.addConstraint(Sketcher.Constraint("DistanceX", -1, 1, 0, 2, 13.695))
sketch19.addConstraint(Sketcher.Constraint("DistanceY", 0, 2, -1, 1, 0.275))
pad19 = doc.addObject("PartDesign::Pad", "Pad018")
body19.addObject(pad19)
pad19.Profile = sketch19
pad19.Length = 5.5
pad19.Reversed = True
body20 = doc.addObject("PartDesign::Body", "Body019")

sketch20 = doc.addObject("Sketcher::SketchObject", "Sketch019")
body20.addObject(sketch20)
sketch20.AttachmentSupport = (doc.getObject("XZ_Plane019"), [""])
sketch20.MapMode = "FlatFace"
sketch20.addGeometry(Part.LineSegment(App.Vector(16.2, 0.3, 0), App.Vector(16.2, -0.3, 0)), False)
sketch20.addGeometry(Part.LineSegment(App.Vector(16.2, -0.3, 0), App.Vector(16.8, -0.3, 0)), False)
sketch20.addGeometry(Part.LineSegment(App.Vector(16.8, -0.3, 0), App.Vector(16.8, 0.3, 0)), False)
sketch20.addGeometry(Part.LineSegment(App.Vector(16.8, 0.3, 0), App.Vector(16.2, 0.3, 0)), False)
sketch20.addConstraint(Sketcher.Constraint("Coincident", 0, 2, 1, 1))
sketch20.addConstraint(Sketcher.Constraint("Coincident", 1, 2, 2, 1))
sketch20.addConstraint(Sketcher.Constraint("Coincident", 2, 2, 3, 1))
sketch20.addConstraint(Sketcher.Constraint("Coincident", 3, 2, 0, 1))
sketch20.addConstraint(Sketcher.Constraint("Vertical", 0))
sketch20.addConstraint(Sketcher.Constraint("Horizontal", 1))
sketch20.addConstraint(Sketcher.Constraint("Vertical", 2))
sketch20.addConstraint(Sketcher.Constraint("Horizontal", 3))
sketch20.addConstraint(Sketcher.Constraint("Equal", 3, 0))
sketch20.addConstraint(Sketcher.Constraint("DistanceX", 1, 1, 1, 2, 0.55))
sketch20.addConstraint(Sketcher.Constraint("DistanceX", -1, 1, 0, 2, 16.235))
sketch20.addConstraint(Sketcher.Constraint("DistanceY", 0, 2, -1, 1, 0.275))
pad20 = doc.addObject("PartDesign::Pad", "Pad019")
body20.addObject(pad20)
pad20.Profile = sketch20
pad20.Length = 5.5
pad20.Reversed = True
body21 = doc.addObject("PartDesign::Body", "Body020")

sketch21 = doc.addObject("Sketcher::SketchObject", "Sketch020")
body21.addObject(sketch21)
sketch21.AttachmentSupport = (doc.getObject("XZ_Plane020"), [""])
sketch21.MapMode = "FlatFace"
sketch21.addGeometry(Part.LineSegment(App.Vector(18.8, 0.3, 0), App.Vector(18.8, -0.3, 0)), False)
sketch21.addGeometry(Part.LineSegment(App.Vector(18.8, -0.3, 0), App.Vector(19.3, -0.3, 0)), False)
sketch21.addGeometry(Part.LineSegment(App.Vector(19.3, -0.3, 0), App.Vector(19.3, 0.3, 0)), False)
sketch21.addGeometry(Part.LineSegment(App.Vector(19.3, 0.3, 0), App.Vector(18.8, 0.3, 0)), False)
sketch21.addConstraint(Sketcher.Constraint("Coincident", 0, 2, 1, 1))
sketch21.addConstraint(Sketcher.Constraint("Coincident", 1, 2, 2, 1))
sketch21.addConstraint(Sketcher.Constraint("Coincident", 2, 2, 3, 1))
sketch21.addConstraint(Sketcher.Constraint("Coincident", 3, 2, 0, 1))
sketch21.addConstraint(Sketcher.Constraint("Vertical", 0))
sketch21.addConstraint(Sketcher.Constraint("Horizontal", 1))
sketch21.addConstraint(Sketcher.Constraint("Vertical", 2))
sketch21.addConstraint(Sketcher.Constraint("Horizontal", 3))
sketch21.addConstraint(Sketcher.Constraint("Equal", 3, 0))
sketch21.addConstraint(Sketcher.Constraint("DistanceX", 1, 1, 1, 2, 0.55))
sketch21.addConstraint(Sketcher.Constraint("DistanceX", -1, 1, 0, 2, 18.775))
sketch21.addConstraint(Sketcher.Constraint("DistanceY", 0, 2, -1, 1, 0.275))
pad21 = doc.addObject("PartDesign::Pad", "Pad020")
body21.addObject(pad21)
pad21.Profile = sketch21
pad21.Length = 5.5
pad21.Reversed = True
body22 = doc.addObject("PartDesign::Body", "Body021")

sketch22 = doc.addObject("Sketcher::SketchObject", "Sketch021")
body22.addObject(sketch22)
sketch22.AttachmentSupport = (doc.getObject("XZ_Plane021"), [""])
sketch22.MapMode = "FlatFace"
sketch22.addGeometry(Part.LineSegment(App.Vector(21.3, 0.3, 0), App.Vector(21.3, -0.3, 0)), False)
sketch22.addGeometry(Part.LineSegment(App.Vector(21.3, -0.3, 0), App.Vector(21.9, -0.3, 0)), False)
sketch22.addGeometry(Part.LineSegment(App.Vector(21.9, -0.3, 0), App.Vector(21.9, 0.3, 0)), False)
sketch22.addGeometry(Part.LineSegment(App.Vector(21.9, 0.3, 0), App.Vector(21.3, 0.3, 0)), False)
sketch22.addConstraint(Sketcher.Constraint("Coincident", 0, 2, 1, 1))
sketch22.addConstraint(Sketcher.Constraint("Coincident", 1, 2, 2, 1))
sketch22.addConstraint(Sketcher.Constraint("Coincident", 2, 2, 3, 1))
sketch22.addConstraint(Sketcher.Constraint("Coincident", 3, 2, 0, 1))
sketch22.addConstraint(Sketcher.Constraint("Vertical", 0))
sketch22.addConstraint(Sketcher.Constraint("Horizontal", 1))
sketch22.addConstraint(Sketcher.Constraint("Vertical", 2))
sketch22.addConstraint(Sketcher.Constraint("Horizontal", 3))
sketch22.addConstraint(Sketcher.Constraint("Equal", 3, 0))
sketch22.addConstraint(Sketcher.Constraint("DistanceX", 1, 1, 1, 2, 0.55))
sketch22.addConstraint(Sketcher.Constraint("DistanceX", -1, 1, 0, 2, 21.315))
sketch22.addConstraint(Sketcher.Constraint("DistanceY", 0, 2, -1, 1, 0.275))
pad22 = doc.addObject("PartDesign::Pad", "Pad021")
body22.addObject(pad22)
pad22.Profile = sketch22
pad22.Length = 5.5
pad22.Reversed = True
body23 = doc.addObject("PartDesign::Body", "Body022")

sketch23 = doc.addObject("Sketcher::SketchObject", "Sketch022")
body23.addObject(sketch23)
sketch23.AttachmentSupport = (doc.getObject("XZ_Plane022"), [""])
sketch23.MapMode = "FlatFace"
sketch23.addGeometry(Part.LineSegment(App.Vector(23.9, 0.3, 0), App.Vector(23.9, -0.3, 0)), False)
sketch23.addGeometry(Part.LineSegment(App.Vector(23.9, -0.3, 0), App.Vector(24.4, -0.3, 0)), False)
sketch23.addGeometry(Part.LineSegment(App.Vector(24.4, -0.3, 0), App.Vector(24.4, 0.3, 0)), False)
sketch23.addGeometry(Part.LineSegment(App.Vector(24.4, 0.3, 0), App.Vector(23.9, 0.3, 0)), False)
sketch23.addConstraint(Sketcher.Constraint("Coincident", 0, 2, 1, 1))
sketch23.addConstraint(Sketcher.Constraint("Coincident", 1, 2, 2, 1))
sketch23.addConstraint(Sketcher.Constraint("Coincident", 2, 2, 3, 1))
sketch23.addConstraint(Sketcher.Constraint("Coincident", 3, 2, 0, 1))
sketch23.addConstraint(Sketcher.Constraint("Vertical", 0))
sketch23.addConstraint(Sketcher.Constraint("Horizontal", 1))
sketch23.addConstraint(Sketcher.Constraint("Vertical", 2))
sketch23.addConstraint(Sketcher.Constraint("Horizontal", 3))
sketch23.addConstraint(Sketcher.Constraint("Equal", 3, 0))
sketch23.addConstraint(Sketcher.Constraint("DistanceX", 1, 1, 1, 2, 0.55))
sketch23.addConstraint(Sketcher.Constraint("DistanceX", -1, 1, 0, 2, 23.855))
sketch23.addConstraint(Sketcher.Constraint("DistanceY", 0, 2, -1, 1, 0.275))
pad23 = doc.addObject("PartDesign::Pad", "Pad022")
body23.addObject(pad23)
pad23.Profile = sketch23
pad23.Length = 5.5
pad23.Reversed = True
body24 = doc.addObject("PartDesign::Body", "Body023")

sketch24 = doc.addObject("Sketcher::SketchObject", "Sketch023")
body24.addObject(sketch24)
sketch24.AttachmentSupport = (doc.getObject("XZ_Plane023"), [""])
sketch24.MapMode = "FlatFace"
sketch24.addGeometry(Part.LineSegment(App.Vector(26.4, 0.3, 0), App.Vector(26.4, -0.3, 0)), False)
sketch24.addGeometry(Part.LineSegment(App.Vector(26.4, -0.3, 0), App.Vector(26.9, -0.3, 0)), False)
sketch24.addGeometry(Part.LineSegment(App.Vector(26.9, -0.3, 0), App.Vector(26.9, 0.3, 0)), False)
sketch24.addGeometry(Part.LineSegment(App.Vector(26.9, 0.3, 0), App.Vector(26.4, 0.3, 0)), False)
sketch24.addConstraint(Sketcher.Constraint("Coincident", 0, 2, 1, 1))
sketch24.addConstraint(Sketcher.Constraint("Coincident", 1, 2, 2, 1))
sketch24.addConstraint(Sketcher.Constraint("Coincident", 2, 2, 3, 1))
sketch24.addConstraint(Sketcher.Constraint("Coincident", 3, 2, 0, 1))
sketch24.addConstraint(Sketcher.Constraint("Vertical", 0))
sketch24.addConstraint(Sketcher.Constraint("Horizontal", 1))
sketch24.addConstraint(Sketcher.Constraint("Vertical", 2))
sketch24.addConstraint(Sketcher.Constraint("Horizontal", 3))
sketch24.addConstraint(Sketcher.Constraint("Equal", 3, 0))
sketch24.addConstraint(Sketcher.Constraint("DistanceX", 1, 1, 1, 2, 0.55))
sketch24.addConstraint(Sketcher.Constraint("DistanceX", -1, 1, 0, 2, 26.395))
sketch24.addConstraint(Sketcher.Constraint("DistanceY", 0, 2, -1, 1, 0.275))
pad24 = doc.addObject("PartDesign::Pad", "Pad023")
body24.addObject(pad24)
pad24.Profile = sketch24
pad24.Length = 5.5
pad24.Reversed = True
body25 = doc.addObject("PartDesign::Body", "Body024")

sketch25 = doc.addObject("Sketcher::SketchObject", "Sketch024")
body25.addObject(sketch25)
sketch25.AttachmentSupport = (doc.getObject("XZ_Plane024"), [""])
sketch25.MapMode = "FlatFace"
sketch25.addGeometry(Part.LineSegment(App.Vector(28.9, 0.3, 0), App.Vector(28.9, -0.3, 0)), False)
sketch25.addGeometry(Part.LineSegment(App.Vector(28.9, -0.3, 0), App.Vector(29.5, -0.3, 0)), False)
sketch25.addGeometry(Part.LineSegment(App.Vector(29.5, -0.3, 0), App.Vector(29.5, 0.3, 0)), False)
sketch25.addGeometry(Part.LineSegment(App.Vector(29.5, 0.3, 0), App.Vector(28.9, 0.3, 0)), False)
sketch25.addConstraint(Sketcher.Constraint("Coincident", 0, 2, 1, 1))
sketch25.addConstraint(Sketcher.Constraint("Coincident", 1, 2, 2, 1))
sketch25.addConstraint(Sketcher.Constraint("Coincident", 2, 2, 3, 1))
sketch25.addConstraint(Sketcher.Constraint("Coincident", 3, 2, 0, 1))
sketch25.addConstraint(Sketcher.Constraint("Vertical", 0))
sketch25.addConstraint(Sketcher.Constraint("Horizontal", 1))
sketch25.addConstraint(Sketcher.Constraint("Vertical", 2))
sketch25.addConstraint(Sketcher.Constraint("Horizontal", 3))
sketch25.addConstraint(Sketcher.Constraint("Equal", 3, 0))
sketch25.addConstraint(Sketcher.Constraint("DistanceX", 1, 1, 1, 2, 0.55))
sketch25.addConstraint(Sketcher.Constraint("DistanceX", -1, 1, 0, 2, 28.935))
sketch25.addConstraint(Sketcher.Constraint("DistanceY", 0, 2, -1, 1, 0.275))
pad25 = doc.addObject("PartDesign::Pad", "Pad024")
body25.addObject(pad25)
pad25.Profile = sketch25
pad25.Length = 5.5
pad25.Reversed = True

doc.recompute()
